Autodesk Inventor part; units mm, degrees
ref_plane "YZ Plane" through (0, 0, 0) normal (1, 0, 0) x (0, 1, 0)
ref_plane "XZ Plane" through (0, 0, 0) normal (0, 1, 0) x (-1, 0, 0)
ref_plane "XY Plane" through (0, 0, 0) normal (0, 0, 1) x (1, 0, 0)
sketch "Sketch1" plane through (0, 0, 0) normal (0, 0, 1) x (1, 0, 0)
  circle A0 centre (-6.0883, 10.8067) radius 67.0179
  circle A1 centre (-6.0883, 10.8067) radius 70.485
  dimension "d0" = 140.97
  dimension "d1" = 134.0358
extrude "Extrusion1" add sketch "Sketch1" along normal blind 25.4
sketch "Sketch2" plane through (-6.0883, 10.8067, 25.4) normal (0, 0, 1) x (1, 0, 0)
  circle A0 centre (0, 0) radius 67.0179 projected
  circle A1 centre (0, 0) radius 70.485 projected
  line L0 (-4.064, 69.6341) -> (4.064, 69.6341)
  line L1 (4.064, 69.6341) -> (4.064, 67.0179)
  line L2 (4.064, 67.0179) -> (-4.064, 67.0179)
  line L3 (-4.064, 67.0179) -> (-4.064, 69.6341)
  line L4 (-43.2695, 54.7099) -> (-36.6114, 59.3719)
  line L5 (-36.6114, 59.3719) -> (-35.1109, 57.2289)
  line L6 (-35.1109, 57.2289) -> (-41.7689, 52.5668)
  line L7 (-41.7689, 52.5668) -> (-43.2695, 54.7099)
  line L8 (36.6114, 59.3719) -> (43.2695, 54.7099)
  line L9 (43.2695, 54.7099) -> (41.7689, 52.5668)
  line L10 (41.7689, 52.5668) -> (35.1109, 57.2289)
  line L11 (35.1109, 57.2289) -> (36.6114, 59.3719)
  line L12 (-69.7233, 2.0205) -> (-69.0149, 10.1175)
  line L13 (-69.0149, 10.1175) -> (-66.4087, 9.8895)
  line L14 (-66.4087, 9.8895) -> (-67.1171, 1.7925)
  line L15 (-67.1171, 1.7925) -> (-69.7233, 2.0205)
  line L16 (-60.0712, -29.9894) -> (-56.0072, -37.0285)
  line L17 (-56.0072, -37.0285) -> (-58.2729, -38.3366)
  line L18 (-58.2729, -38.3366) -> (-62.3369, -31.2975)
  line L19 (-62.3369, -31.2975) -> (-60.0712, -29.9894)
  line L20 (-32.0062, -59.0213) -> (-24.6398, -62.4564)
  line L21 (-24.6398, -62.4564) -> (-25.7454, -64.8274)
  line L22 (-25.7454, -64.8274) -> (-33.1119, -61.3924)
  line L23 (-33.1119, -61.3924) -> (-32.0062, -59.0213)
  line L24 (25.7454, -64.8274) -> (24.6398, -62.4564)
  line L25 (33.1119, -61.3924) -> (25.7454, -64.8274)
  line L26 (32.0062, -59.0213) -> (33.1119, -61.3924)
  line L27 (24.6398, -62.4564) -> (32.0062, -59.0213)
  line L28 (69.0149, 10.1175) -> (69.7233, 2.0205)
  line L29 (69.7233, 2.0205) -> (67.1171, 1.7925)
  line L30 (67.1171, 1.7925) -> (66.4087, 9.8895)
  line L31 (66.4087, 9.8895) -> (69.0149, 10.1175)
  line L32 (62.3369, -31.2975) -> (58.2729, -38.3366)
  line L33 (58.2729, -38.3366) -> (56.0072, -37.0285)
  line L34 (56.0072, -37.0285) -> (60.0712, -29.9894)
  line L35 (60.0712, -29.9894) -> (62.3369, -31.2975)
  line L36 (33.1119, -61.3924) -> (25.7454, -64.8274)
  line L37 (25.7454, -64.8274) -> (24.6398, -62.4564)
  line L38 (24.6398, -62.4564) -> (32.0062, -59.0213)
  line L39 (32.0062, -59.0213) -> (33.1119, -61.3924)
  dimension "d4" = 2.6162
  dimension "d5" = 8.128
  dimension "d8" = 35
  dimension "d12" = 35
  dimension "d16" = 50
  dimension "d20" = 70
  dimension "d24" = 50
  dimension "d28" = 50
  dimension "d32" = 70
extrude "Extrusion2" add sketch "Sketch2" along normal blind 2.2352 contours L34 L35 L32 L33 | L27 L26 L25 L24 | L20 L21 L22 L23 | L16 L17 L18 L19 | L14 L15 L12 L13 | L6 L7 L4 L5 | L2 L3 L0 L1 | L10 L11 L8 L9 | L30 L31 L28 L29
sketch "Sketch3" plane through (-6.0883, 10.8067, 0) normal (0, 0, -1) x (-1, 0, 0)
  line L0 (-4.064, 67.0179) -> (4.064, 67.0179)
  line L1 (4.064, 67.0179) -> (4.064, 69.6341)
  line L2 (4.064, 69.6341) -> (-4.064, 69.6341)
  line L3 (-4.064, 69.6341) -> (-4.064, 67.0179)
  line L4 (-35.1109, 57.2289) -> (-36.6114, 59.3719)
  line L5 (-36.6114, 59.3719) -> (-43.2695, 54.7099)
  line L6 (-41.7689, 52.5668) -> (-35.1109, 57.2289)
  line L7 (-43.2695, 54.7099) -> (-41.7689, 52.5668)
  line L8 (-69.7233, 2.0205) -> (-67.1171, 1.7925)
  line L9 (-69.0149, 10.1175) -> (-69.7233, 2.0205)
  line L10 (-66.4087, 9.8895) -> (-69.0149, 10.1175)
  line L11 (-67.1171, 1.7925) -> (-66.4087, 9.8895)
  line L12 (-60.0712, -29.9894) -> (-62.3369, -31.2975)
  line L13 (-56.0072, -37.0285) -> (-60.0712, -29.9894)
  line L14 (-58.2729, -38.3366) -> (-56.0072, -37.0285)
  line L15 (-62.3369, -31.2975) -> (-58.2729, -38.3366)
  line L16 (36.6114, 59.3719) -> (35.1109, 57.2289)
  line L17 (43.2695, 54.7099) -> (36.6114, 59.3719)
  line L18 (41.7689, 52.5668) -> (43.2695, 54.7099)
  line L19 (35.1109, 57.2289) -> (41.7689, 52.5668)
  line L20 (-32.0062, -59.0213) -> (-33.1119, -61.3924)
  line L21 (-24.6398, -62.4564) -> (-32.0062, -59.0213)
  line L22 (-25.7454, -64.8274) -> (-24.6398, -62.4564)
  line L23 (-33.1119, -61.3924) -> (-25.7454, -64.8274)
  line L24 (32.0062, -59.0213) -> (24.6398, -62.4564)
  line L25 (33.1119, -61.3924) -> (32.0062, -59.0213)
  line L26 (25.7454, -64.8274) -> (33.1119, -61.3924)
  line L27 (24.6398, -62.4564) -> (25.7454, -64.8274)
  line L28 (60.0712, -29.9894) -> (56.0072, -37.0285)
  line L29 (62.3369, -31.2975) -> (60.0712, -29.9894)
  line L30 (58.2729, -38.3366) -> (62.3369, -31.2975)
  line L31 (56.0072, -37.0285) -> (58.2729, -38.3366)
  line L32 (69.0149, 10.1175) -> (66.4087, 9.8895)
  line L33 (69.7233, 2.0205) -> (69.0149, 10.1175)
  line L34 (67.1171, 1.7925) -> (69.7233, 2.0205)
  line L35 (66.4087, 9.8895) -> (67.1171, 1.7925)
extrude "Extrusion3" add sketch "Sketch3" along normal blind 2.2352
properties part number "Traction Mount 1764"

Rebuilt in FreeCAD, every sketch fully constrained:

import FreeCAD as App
import Part
import Sketcher
from FreeCAD import Vector
Q = App.Units.Quantity


def add_polygon(sketch, points):
    """Adds a closed chain of lines whose ends are joined by coincident constraints."""
    first, n = sketch.GeometryCount, len(points)
    for a, b in zip(points, points[1:] + points[:1]):
        sketch.addGeometry(Part.LineSegment(App.Vector(*a, 0), App.Vector(*b, 0)), False)
    for i in range(n):
        sketch.addConstraint(Sketcher.Constraint("Coincident", first + i, 2, first + (i + 1) % n, 1))

doc = App.newDocument("Part")
body = doc.addObject("PartDesign::Body", "Body")

# Sketch on XY plane
sketch1 = doc.addObject("Sketcher::SketchObject", "Sketch")
body.addObject(sketch1)
sketch1.AttachmentSupport = (doc.XY_Plane, [""])
sketch1.MapMode = "FlatFace"
sketch1.addGeometry([
    Part.Circle(Vector(-6, 11, 0), Vector(0, 0, 1), 70),
    Part.Circle(Vector(-6, 11, 0), Vector(0, 0, 1), 67),
], False)
sketch1.addConstraint([
    Sketcher.Constraint("Coincident", 1, 3, 0, 3),
    Sketcher.Constraint("Diameter", 0, Q("5.55 in")),
    Sketcher.Constraint("Diameter", 1, Q("5.277 in")),
    Sketcher.Constraint("DistanceX", 0, 3, -1, 1, Q("0.2397 in")),
    Sketcher.Constraint("DistanceY", -1, 1, 0, 3, Q("10.8067 mm")),
])
pad1 = doc.addObject("PartDesign::Pad", "Pad")
body.addObject(pad1)
pad1.Profile = sketch1
pad1.Length = Q("1 in")

# Sketch on XY plane
sketch2 = doc.addObject("Sketcher::SketchObject", "Sketch001")
body.addObject(sketch2)
sketch2.AttachmentSupport = (doc.XY_Plane, [""])
sketch2.MapMode = "FlatFace"
sketch2.AttachmentOffset = App.Placement(Vector(0, 0, 1 * 25.4), App.Rotation())
add_polygon(sketch2, [(54, -19.2), (49.9, -26.2), (52.2, -27.5), (56.2, -20.5)])  # lines 0-3
add_polygon(sketch2, [(25.9, -48.2), (18.6, -51.6), (19.7, -54), (27, -50.6)])  # lines 4-7
add_polygon(sketch2, [(-30.7, -51.6), (-38.1, -48.2), (-39.2, -50.6), (-31.8, -54)])  # lines 8-11
add_polygon(sketch2, [(-62.1, -26.2), (-66.2, -19.2), (-68.4, -20.5), (-64.4, -27.5)])  # lines 12-15
add_polygon(sketch2, [(-73.2, 12.6), (-72.5, 20.7), (-75.1, 20.9), (-75.8, 12.8)])  # lines 16-19
add_polygon(sketch2, [(-47.9, 63.4), (-41.2, 68), (-42.7, 70.2), (-49.4, 65.5)])  # lines 20-23
add_polygon(sketch2, [(-10.2, 77.8), (-2, 77.8), (-2, 80.4), (-10.2, 80.4)])  # lines 24-27
add_polygon(sketch2, [(29, 68), (35.7, 63.4), (37.2, 65.5), (30.5, 70.2)])  # lines 28-31
add_polygon(sketch2, [(60.3, 20.7), (61, 12.6), (63.6, 12.8), (62.9, 20.9)])  # lines 32-35
sketch2.addConstraint([
    Sketcher.Constraint("Horizontal", 24),
    Sketcher.Constraint("Vertical", 25),
    Sketcher.Constraint("Horizontal", 26),
    Sketcher.Constraint("Vertical", 27),
    Sketcher.Constraint("Perpendicular", 0, 1),
    Sketcher.Constraint("Perpendicular", 1, 2),
    Sketcher.Constraint("Perpendicular", 2, 3),
    Sketcher.Constraint("Perpendicular", 4, 5),
    Sketcher.Constraint("Perpendicular", 5, 6),
    Sketcher.Constraint("Perpendicular", 6, 7),
    Sketcher.Constraint("Perpendicular", 8, 9),
    Sketcher.Constraint("Perpendicular", 9, 10),
    Sketcher.Constraint("Perpendicular", 10, 11),
    Sketcher.Constraint("Perpendicular", 12, 13),
    Sketcher.Constraint("Perpendicular", 13, 14),
    Sketcher.Constraint("Perpendicular", 14, 15),
    Sketcher.Constraint("Perpendicular", 16, 17),
    Sketcher.Constraint("Perpendicular", 17, 18),
    Sketcher.Constraint("Perpendicular", 18, 19),
    Sketcher.Constraint("Perpendicular", 20, 21),
    Sketcher.Constraint("Perpendicular", 21, 22),
    Sketcher.Constraint("Perpendicular", 22, 23),
    Sketcher.Constraint("Perpendicular", 28, 29),
    Sketcher.Constraint("Perpendicular", 29, 30),
    Sketcher.Constraint("Perpendicular", 30, 31),
    Sketcher.Constraint("Perpendicular", 32, 33),
    Sketcher.Constraint("Perpendicular", 33, 34),
    Sketcher.Constraint("Perpendicular", 34, 35),
    Sketcher.Constraint("Horizontal", 7, 2, 8, 2),
    Sketcher.Constraint("Horizontal", 6, 2, 9, 2),
    Sketcher.Constraint("Horizontal", 5, 2, 10, 2),
    Sketcher.Constraint("Horizontal", 3, 2, 12, 2),
    Sketcher.Constraint("Horizontal", 2, 2, 13, 2),
    Sketcher.Constraint("Horizontal", 1, 2, 14, 2),
    Sketcher.Constraint("Horizontal", 23, 2, 28, 2),
    Sketcher.Constraint("Horizontal", 22, 2, 29, 2),
    Sketcher.Constraint("Horizontal", 21, 2, 30, 2),
    Sketcher.Constraint("Horizontal", 19, 2, 32, 2),
    Sketcher.Constraint("Horizontal", 18, 2, 33, 2),
    Sketcher.Constraint("Horizontal", 17, 2, 34, 2),
    Sketcher.Constraint("Equal", 2, 4),
    Sketcher.Constraint("Equal", 3, 5),
    Sketcher.Constraint("Equal", 6, 8),
    Sketcher.Constraint("Equal", 10, 12),
    Sketcher.Constraint("Equal", 14, 16),
    Sketcher.Constraint("Equal", 15, 17),
    Sketcher.Constraint("Equal", 18, 20),
    Sketcher.Constraint("Equal", 19, 21),
    Sketcher.Constraint("Equal", 22, 28),
    Sketcher.Constraint("Equal", 30, 32),
    Sketcher.Constraint("DistanceX", 24, 1, 24, 2, Q("0.32 in")),
    Sketcher.Constraint("Distance", 0, Q("0.32 in")),
    Sketcher.Constraint("DistanceY", 25, 1, 25, 2, Q("0.103 in")),
    Sketcher.Constraint("Distance", 1, Q("0.103 in")),
    Sketcher.Constraint("Angle", 0, Q("-119.9998 deg")),
    Sketcher.Constraint("Angle", 4, Q("-154.9994 deg")),
    Sketcher.Constraint("Angle", 16, Q("85 deg")),
    Sketcher.Constraint("Angle", 20, Q("35.0007 deg")),
    Sketcher.Constraint("DistanceX", 18, 2, 12, 2, Q("0.38 in")),
    Sketcher.Constraint("DistanceX", 3, 2, 33, 2, Q("0.38 in")),
    Sketcher.Constraint("DistanceY", -1, 1, 18, 2, Q("0.505 in")),
    Sketcher.Constraint("DistanceY", 8, 2, 12, 2, Q("1.143 in")),
    Sketcher.Constraint("DistanceY", 12, 2, 17, 2, Q("1.579 in")),
    Sketcher.Constraint("DistanceX", 19, 2, 21, 2, Q("1.201 in")),
    Sketcher.Constraint("DistanceY", 32, 2, 28, 2, Q("1.999 in")),
    Sketcher.Constraint("DistanceX", -1, 1, 0, 2, Q("1.9653 in")),
    Sketcher.Constraint("DistanceX", -1, 1, 5, 2, Q("0.7739 in")),
    Sketcher.Constraint("DistanceX", 10, 2, -1, 1, Q("1.2533 in")),
    Sketcher.Constraint("DistanceX", 12, 2, -1, 1, Q("2.6047 in")),
    Sketcher.Constraint("DistanceX", 24, 2, -1, 1, Q("0.0797 in")),
    Sketcher.Constraint("DistanceX", -1, 1, 30, 2, Q("1.2017 in")),
    Sketcher.Constraint("DistanceY", 20, 2, 24, 2, Q("0.3854 in")),
])
pad2 = doc.addObject("PartDesign::Pad", "Pad001")
body.addObject(pad2)
pad2.Profile = sketch2
pad2.Length = Q("0.088 in")

# Sketch on XY plane
sketch3 = doc.addObject("Sketcher::SketchObject", "Sketch002")
body.addObject(sketch3)
sketch3.AttachmentSupport = (doc.XY_Plane, [""])
sketch3.MapMode = "FlatFace"
add_polygon(sketch3, [(-2, 80.4), (-2, 77.8), (-10.2, 77.8), (-10.2, 80.4)])  # lines 0-3
add_polygon(sketch3, [(35.7, 63.4), (29, 68), (30.5, 70.2), (37.2, 65.5)])  # lines 4-7
add_polygon(sketch3, [(62.9, 20.9), (63.6, 12.8), (61, 12.6), (60.3, 20.7)])  # lines 8-11
add_polygon(sketch3, [(49.9, -26.2), (54, -19.2), (56.2, -20.5), (52.2, -27.5)])  # lines 12-15
add_polygon(sketch3, [(-49.4, 65.5), (-42.7, 70.2), (-41.2, 68), (-47.9, 63.4)])  # lines 16-19
add_polygon(sketch3, [(18.6, -51.6), (25.9, -48.2), (27, -50.6), (19.7, -54)])  # lines 20-23
add_polygon(sketch3, [(-39.2, -50.6), (-38.1, -48.2), (-30.7, -51.6), (-31.8, -54)])  # lines 24-27
add_polygon(sketch3, [(-68.4, -20.5), (-66.2, -19.2), (-62.1, -26.2), (-64.4, -27.5)])  # lines 28-31
add_polygon(sketch3, [(-75.8, 12.8), (-75.1, 20.9), (-72.5, 20.7), (-73.2, 12.6)])  # lines 32-35
sketch3.addConstraint([
    Sketcher.Constraint("Vertical", 0),
    Sketcher.Constraint("Horizontal", 1),
    Sketcher.Constraint("Vertical", 2),
    Sketcher.Constraint("Horizontal", 3),
    Sketcher.Constraint("Perpendicular", 4, 5),
    Sketcher.Constraint("Perpendicular", 5, 6),
    Sketcher.Constraint("Perpendicular", 6, 7),
    Sketcher.Constraint("Perpendicular", 8, 9),
    Sketcher.Constraint("Perpendicular", 9, 10),
    Sketcher.Constraint("Perpendicular", 10, 11),
    Sketcher.Constraint("Perpendicular", 12, 13),
    Sketcher.Constraint("Perpendicular", 13, 14),
    Sketcher.Constraint("Perpendicular", 14, 15),
    Sketcher.Constraint("Perpendicular", 16, 17),
    Sketcher.Constraint("Perpendicular", 17, 18),
    Sketcher.Constraint("Perpendicular", 18, 19),
    Sketcher.Constraint("Perpendicular", 20, 21),
    Sketcher.Constraint("Perpendicular", 21, 22),
    Sketcher.Constraint("Perpendicular", 22, 23),
    Sketcher.Constraint("Perpendicular", 24, 25),
    Sketcher.Constraint("Perpendicular", 25, 26),
    Sketcher.Constraint("Perpendicular", 26, 27),
    Sketcher.Constraint("Perpendicular", 28, 29),
    Sketcher.Constraint("Perpendicular", 29, 30),
    Sketcher.Constraint("Perpendicular", 30, 31),
    Sketcher.Constraint("Perpendicular", 32, 33),
    Sketcher.Constraint("Perpendicular", 33, 34),
    Sketcher.Constraint("Perpendicular", 34, 35),
    Sketcher.Constraint("Horizontal", 5, 2, 16, 2),
    Sketcher.Constraint("Horizontal", 4, 2, 17, 2),
    Sketcher.Constraint("Horizontal", 7, 2, 18, 2),
    Sketcher.Constraint("Horizontal", 20, 2, 24, 2),
    Sketcher.Constraint("Horizontal", 23, 2, 25, 2),
    Sketcher.Constraint("Horizontal", 22, 2, 26, 2),
    Sketcher.Constraint("Horizontal", 12, 2, 28, 2),
    Sketcher.Constraint("Horizontal", 15, 2, 29, 2),
    Sketcher.Constraint("Horizontal", 14, 2, 30, 2),
    Sketcher.Constraint("Horizontal", 11, 2, 32, 2),
    Sketcher.Constraint("Horizontal", 10, 2, 33, 2),
    Sketcher.Constraint("Horizontal", 9, 2, 34, 2),
    Sketcher.Constraint("Equal", 6, 8),
    Sketcher.Constraint("Equal", 7, 9),
    Sketcher.Constraint("Equal", 10, 12),
    Sketcher.Constraint("Equal", 11, 13),
    Sketcher.Constraint("Equal", 14, 16),
    Sketcher.Constraint("Equal", 18, 20),
    Sketcher.Constraint("Equal", 19, 21),
    Sketcher.Constraint("Equal", 23, 24),
    Sketcher.Constraint("Equal", 26, 28),
    Sketcher.Constraint("Equal", 31, 32),
    Sketcher.Constraint("Angle", 4, Q("144.9993 deg")),
    Sketcher.Constraint("Angle", 8, Q("-85 deg")),
    Sketcher.Constraint("Angle", 12, Q("60.0002 deg")),
    Sketcher.Constraint("Angle", 20, Q("25.0006 deg")),
    Sketcher.Constraint("DistanceX", 1, 2, 1, 1, Q("0.32 in")),
    Sketcher.Constraint("Distance", 4, Q("0.32 in")),
    Sketcher.Constraint("DistanceY", 0, 2, 0, 1, Q("0.103 in")),
    Sketcher.Constraint("DistanceY", 8, 2, 7, 2, Q("1.99 in")),
    Sketcher.Constraint("DistanceX", 12, 2, 8, 2, Q("0.38 in")),
    Sketcher.Constraint("DistanceX", 35, 2, 28, 2, Q("0.38 in")),
    Sketcher.Constraint("Distance", 5, Q("0.103 in")),
    Sketcher.Constraint("DistanceY", -1, 1, 8, 2, Q("0.505 in")),
    Sketcher.Constraint("DistanceX", 0, 2, 8, 2, Q("2.585 in")),
    Sketcher.Constraint("DistanceX", 5, 2, 9, 2, Q("1.201 in")),
    Sketcher.Constraint("DistanceY", 12, 2, 11, 2, Q("1.579 in")),
    Sketcher.Constraint("DistanceY", 20, 2, 12, 2, Q("1.143 in")),
    Sketcher.Constraint("DistanceX", 0, 2, -1, 1, Q("0.0797 in")),
    Sketcher.Constraint("DistanceX", 16, 2, -1, 1, Q("1.6811 in")),
    Sketcher.Constraint("DistanceX", -1, 1, 20, 2, Q("1.0204 in")),
    Sketcher.Constraint("DistanceX", 26, 2, -1, 1, Q("1.2533 in")),
    Sketcher.Constraint("DistanceX", 28, 2, -1, 1, Q("2.6047 in")),
    Sketcher.Constraint("DistanceY", 4, 2, 0, 2, Q("0.3854 in")),
])
pad3 = doc.addObject("PartDesign::Pad", "Pad002")
body.addObject(pad3)
pad3.Profile = sketch3
pad3.Length = Q("0.088 in")
pad3.Reversed = True

doc.recompute()
